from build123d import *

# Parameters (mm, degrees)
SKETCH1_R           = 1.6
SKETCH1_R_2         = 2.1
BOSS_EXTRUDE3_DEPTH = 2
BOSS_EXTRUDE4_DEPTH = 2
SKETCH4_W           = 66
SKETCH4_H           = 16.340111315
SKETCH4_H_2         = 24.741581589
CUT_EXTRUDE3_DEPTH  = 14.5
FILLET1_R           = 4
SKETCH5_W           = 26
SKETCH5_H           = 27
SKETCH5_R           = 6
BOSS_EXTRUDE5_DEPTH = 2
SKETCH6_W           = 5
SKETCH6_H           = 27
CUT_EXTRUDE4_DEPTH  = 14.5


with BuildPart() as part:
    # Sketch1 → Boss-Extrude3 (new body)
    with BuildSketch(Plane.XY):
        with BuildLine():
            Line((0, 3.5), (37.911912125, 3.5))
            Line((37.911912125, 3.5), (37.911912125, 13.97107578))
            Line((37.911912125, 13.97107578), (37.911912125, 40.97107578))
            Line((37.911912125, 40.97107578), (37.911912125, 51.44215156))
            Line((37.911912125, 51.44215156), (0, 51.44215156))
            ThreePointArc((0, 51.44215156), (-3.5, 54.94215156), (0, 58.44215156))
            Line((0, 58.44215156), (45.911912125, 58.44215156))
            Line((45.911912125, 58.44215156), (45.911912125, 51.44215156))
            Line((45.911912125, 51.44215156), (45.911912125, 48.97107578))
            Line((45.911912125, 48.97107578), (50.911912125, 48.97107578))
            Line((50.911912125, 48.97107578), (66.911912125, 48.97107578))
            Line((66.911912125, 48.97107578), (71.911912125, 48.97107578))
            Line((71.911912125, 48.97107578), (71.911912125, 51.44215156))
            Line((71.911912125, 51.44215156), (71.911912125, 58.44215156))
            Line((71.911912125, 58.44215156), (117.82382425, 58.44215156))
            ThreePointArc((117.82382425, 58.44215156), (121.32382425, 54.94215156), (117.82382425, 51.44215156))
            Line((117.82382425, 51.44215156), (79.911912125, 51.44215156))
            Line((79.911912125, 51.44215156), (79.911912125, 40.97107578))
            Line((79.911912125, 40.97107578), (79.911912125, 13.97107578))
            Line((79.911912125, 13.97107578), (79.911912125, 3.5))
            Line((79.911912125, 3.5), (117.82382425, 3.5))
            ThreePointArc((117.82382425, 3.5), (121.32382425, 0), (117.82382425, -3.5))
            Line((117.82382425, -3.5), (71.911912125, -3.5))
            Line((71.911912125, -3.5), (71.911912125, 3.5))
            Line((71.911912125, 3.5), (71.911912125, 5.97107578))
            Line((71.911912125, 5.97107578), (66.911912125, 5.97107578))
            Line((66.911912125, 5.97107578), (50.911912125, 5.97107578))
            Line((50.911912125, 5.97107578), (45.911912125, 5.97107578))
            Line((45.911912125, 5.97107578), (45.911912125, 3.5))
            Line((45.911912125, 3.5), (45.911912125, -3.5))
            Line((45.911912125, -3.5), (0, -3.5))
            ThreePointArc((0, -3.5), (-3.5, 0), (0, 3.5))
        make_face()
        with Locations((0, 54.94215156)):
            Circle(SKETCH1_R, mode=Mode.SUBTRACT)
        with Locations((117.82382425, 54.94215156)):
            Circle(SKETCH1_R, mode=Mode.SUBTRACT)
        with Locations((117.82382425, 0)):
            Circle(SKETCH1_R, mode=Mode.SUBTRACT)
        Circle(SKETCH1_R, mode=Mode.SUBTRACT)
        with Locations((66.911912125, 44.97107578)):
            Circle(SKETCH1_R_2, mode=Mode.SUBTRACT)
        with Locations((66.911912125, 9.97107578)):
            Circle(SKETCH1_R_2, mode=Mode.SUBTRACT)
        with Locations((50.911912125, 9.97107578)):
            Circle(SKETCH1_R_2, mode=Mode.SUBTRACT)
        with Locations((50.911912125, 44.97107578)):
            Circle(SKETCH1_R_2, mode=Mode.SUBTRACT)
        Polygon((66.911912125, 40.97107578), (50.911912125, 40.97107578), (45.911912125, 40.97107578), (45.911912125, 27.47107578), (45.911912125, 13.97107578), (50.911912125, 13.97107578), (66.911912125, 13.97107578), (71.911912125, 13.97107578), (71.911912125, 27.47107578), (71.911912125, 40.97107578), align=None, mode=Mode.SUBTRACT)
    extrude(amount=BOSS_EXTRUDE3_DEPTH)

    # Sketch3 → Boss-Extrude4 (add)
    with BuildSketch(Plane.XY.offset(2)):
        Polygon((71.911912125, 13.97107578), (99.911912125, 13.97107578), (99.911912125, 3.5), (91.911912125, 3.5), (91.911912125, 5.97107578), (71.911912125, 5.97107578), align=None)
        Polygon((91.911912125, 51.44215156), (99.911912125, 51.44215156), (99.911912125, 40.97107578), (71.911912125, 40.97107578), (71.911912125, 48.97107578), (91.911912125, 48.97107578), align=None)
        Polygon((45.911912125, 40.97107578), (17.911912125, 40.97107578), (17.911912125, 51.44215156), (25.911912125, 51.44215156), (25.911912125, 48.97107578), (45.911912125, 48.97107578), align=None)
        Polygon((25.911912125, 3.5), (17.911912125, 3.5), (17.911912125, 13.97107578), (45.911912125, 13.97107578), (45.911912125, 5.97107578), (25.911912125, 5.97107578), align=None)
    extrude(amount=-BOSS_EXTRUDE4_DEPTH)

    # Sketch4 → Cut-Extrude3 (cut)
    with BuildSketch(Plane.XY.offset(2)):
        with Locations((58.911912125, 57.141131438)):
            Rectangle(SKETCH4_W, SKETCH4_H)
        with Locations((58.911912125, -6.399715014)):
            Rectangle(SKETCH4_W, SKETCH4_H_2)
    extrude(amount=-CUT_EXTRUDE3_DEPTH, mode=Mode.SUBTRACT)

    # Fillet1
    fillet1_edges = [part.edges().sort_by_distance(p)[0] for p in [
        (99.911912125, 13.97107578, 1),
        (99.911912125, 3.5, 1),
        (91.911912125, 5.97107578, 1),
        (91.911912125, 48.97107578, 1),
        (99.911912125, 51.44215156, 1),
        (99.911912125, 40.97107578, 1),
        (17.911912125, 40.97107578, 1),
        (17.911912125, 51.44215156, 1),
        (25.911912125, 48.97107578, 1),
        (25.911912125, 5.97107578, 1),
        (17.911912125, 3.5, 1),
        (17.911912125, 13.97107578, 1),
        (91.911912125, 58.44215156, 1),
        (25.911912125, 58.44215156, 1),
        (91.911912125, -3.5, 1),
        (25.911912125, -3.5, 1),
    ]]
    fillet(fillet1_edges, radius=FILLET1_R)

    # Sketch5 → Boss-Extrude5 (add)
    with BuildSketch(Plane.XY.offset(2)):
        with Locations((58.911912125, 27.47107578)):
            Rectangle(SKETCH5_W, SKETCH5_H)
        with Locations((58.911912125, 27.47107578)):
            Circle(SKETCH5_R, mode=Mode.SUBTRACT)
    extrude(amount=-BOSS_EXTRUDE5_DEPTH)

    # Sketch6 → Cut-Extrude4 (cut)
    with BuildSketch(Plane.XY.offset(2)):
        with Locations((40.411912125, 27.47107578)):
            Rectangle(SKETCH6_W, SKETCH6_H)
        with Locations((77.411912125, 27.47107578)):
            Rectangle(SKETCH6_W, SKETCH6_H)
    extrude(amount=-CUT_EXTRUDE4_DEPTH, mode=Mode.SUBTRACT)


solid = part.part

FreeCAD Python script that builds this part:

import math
import FreeCAD as App
import Part
import Sketcher
from FreeCAD import Vector
Q = App.Units.Quantity


def edges_at(feature, points):
    """Names of the edges that pass closest to the given points."""
    edges = feature.Shape.Edges
    near = lambda p: min(range(len(edges)), key=lambda i: edges[i].distToShape(Part.Vertex(*p))[0])
    return sorted({f"Edge{near(p) + 1}" for p in points})

doc = App.newDocument("Part")
body = doc.addObject("PartDesign::Body", "Body")

sketch1 = doc.addObject("Sketcher::SketchObject", "Sketch")
body.addObject(sketch1)
sketch1.AttachmentSupport = (doc.XY_Plane, [""])
sketch1.MapMode = "FlatFace"
sketch1.addGeometry(Part.LineSegment(Vector(37.9, 3.5, 0), Vector(0, 3.5, 0)), False)
sketch1.addGeometry(Part.ArcOfCircle(Part.Circle(Vector(0, 0, 0), Vector(0, 0, 1), 3.5), math.radians(90), math.radians(270)), False)
sketch1.addGeometry(Part.LineSegment(Vector(0, -3.5, 0), Vector(45.9, -3.5, 0)), False)
sketch1.addGeometry(Part.LineSegment(Vector(45.9, -3.5, 0), Vector(45.9, 6, 0)), False)
sketch1.addGeometry(Part.LineSegment(Vector(45.9, 6, 0), Vector(71.9, 6, 0)), False)
sketch1.addGeometry(Part.LineSegment(Vector(71.9, 6, 0), Vector(71.9, -3.5, 0)), False)
sketch1.addGeometry(Part.LineSegment(Vector(71.9, -3.5, 0), Vector(117.8, -3.5, 0)), False)
sketch1.addGeometry(Part.ArcOfCircle(Part.Circle(Vector(117.8, 0, 0), Vector(0, 0, 1), 3.5), math.radians(-90), math.radians(90)), False)
sketch1.addGeometry(Part.LineSegment(Vector(117.8, 3.5, 0), Vector(79.9, 3.5, 0)), False)
sketch1.addGeometry(Part.LineSegment(Vector(79.9, 3.5, 0), Vector(79.9, 51.4, 0)), False)
sketch1.addGeometry(Part.LineSegment(Vector(79.9, 51.4, 0), Vector(117.8, 51.4, 0)), False)
sketch1.addGeometry(Part.ArcOfCircle(Part.Circle(Vector(117.8, 54.9, 0), Vector(0, 0, 1), 3.5), math.radians(-90), math.radians(90)), False)
sketch1.addGeometry(Part.LineSegment(Vector(117.8, 58.4, 0), Vector(71.9, 58.4, 0)), False)
sketch1.addGeometry(Part.LineSegment(Vector(71.9, 58.4, 0), Vector(71.9, 49, 0)), False)
sketch1.addGeometry(Part.LineSegment(Vector(71.9, 49, 0), Vector(45.9, 49, 0)), False)
sketch1.addGeometry(Part.LineSegment(Vector(45.9, 49, 0), Vector(45.9, 58.4, 0)), False)
sketch1.addGeometry(Part.LineSegment(Vector(45.9, 58.4, 0), Vector(0, 58.4, 0)), False)
sketch1.addGeometry(Part.ArcOfCircle(Part.Circle(Vector(0, 54.9, 0), Vector(0, 0, 1), 3.5), math.radians(90), math.radians(270)), False)
sketch1.addGeometry(Part.LineSegment(Vector(0, 51.4, 0), Vector(37.9, 51.4, 0)), False)
sketch1.addGeometry(Part.LineSegment(Vector(37.9, 51.4, 0), Vector(37.9, 3.5, 0)), False)
sketch1.addGeometry(Part.Circle(Vector(117.8, 0, 0), Vector(0, 0, 1), 1.6), False)
sketch1.addGeometry(Part.Circle(Vector(66.9, 10, 0), Vector(0, 0, 1), 2.1), False)
sketch1.addGeometry(Part.Circle(Vector(50.9, 10, 0), Vector(0, 0, 1), 2.1), False)
sketch1.addGeometry(Part.Circle(Vector(0, 0, 0), Vector(0, 0, 1), 1.6), False)
sketch1.addGeometry(Part.LineSegment(Vector(71.9, 41, 0), Vector(71.9, 14, 0)), False)
sketch1.addGeometry(Part.LineSegment(Vector(71.9, 14, 0), Vector(45.9, 14, 0)), False)
sketch1.addGeometry(Part.LineSegment(Vector(45.9, 14, 0), Vector(45.9, 41, 0)), False)
sketch1.addGeometry(Part.LineSegment(Vector(45.9, 41, 0), Vector(71.9, 41, 0)), False)
sketch1.addGeometry(Part.Circle(Vector(117.8, 54.9, 0), Vector(0, 0, 1), 1.6), False)
sketch1.addGeometry(Part.Circle(Vector(66.9, 45, 0), Vector(0, 0, 1), 2.1), False)
sketch1.addGeometry(Part.Circle(Vector(50.9, 45, 0), Vector(0, 0, 1), 2.1), False)
sketch1.addGeometry(Part.Circle(Vector(0, 54.9, 0), Vector(0, 0, 1), 1.6), False)
sketch1.addConstraint(Sketcher.Constraint("Tangent", 0, 2, 1, 1))
sketch1.addConstraint(Sketcher.Constraint("Tangent", 1, 2, 2, 1))
sketch1.addConstraint(Sketcher.Constraint("Coincident", 2, 2, 3, 1))
sketch1.addConstraint(Sketcher.Constraint("Coincident", 3, 2, 4, 1))
sketch1.addConstraint(Sketcher.Constraint("Coincident", 4, 2, 5, 1))
sketch1.addConstraint(Sketcher.Constraint("Coincident", 5, 2, 6, 1))
sketch1.addConstraint(Sketcher.Constraint("Tangent", 6, 2, 7, 1))
sketch1.addConstraint(Sketcher.Constraint("Tangent", 7, 2, 8, 1))
sketch1.addConstraint(Sketcher.Constraint("Coincident", 8, 2, 9, 1))
sketch1.addConstraint(Sketcher.Constraint("Coincident", 9, 2, 10, 1))
sketch1.addConstraint(Sketcher.Constraint("Tangent", 10, 2, 11, 1))
sketch1.addConstraint(Sketcher.Constraint("Tangent", 11, 2, 12, 1))
sketch1.addConstraint(Sketcher.Constraint("Coincident", 12, 2, 13, 1))
sketch1.addConstraint(Sketcher.Constraint("Coincident", 13, 2, 14, 1))
sketch1.addConstraint(Sketcher.Constraint("Coincident", 14, 2, 15, 1))
sketch1.addConstraint(Sketcher.Constraint("Coincident", 15, 2, 16, 1))
sketch1.addConstraint(Sketcher.Constraint("Tangent", 16, 2, 17, 1))
sketch1.addConstraint(Sketcher.Constraint("Tangent", 17, 2, 18, 1))
sketch1.addConstraint(Sketcher.Constraint("Coincident", 18, 2, 19, 1))
sketch1.addConstraint(Sketcher.Constraint("Coincident", 19, 2, 0, 1))
sketch1.addConstraint(Sketcher.Constraint("Coincident", 24, 2, 25, 1))
sketch1.addConstraint(Sketcher.Constraint("Coincident", 25, 2, 26, 1))
sketch1.addConstraint(Sketcher.Constraint("Coincident", 26, 2, 27, 1))
sketch1.addConstraint(Sketcher.Constraint("Coincident", 27, 2, 24, 1))
sketch1.addConstraint(Sketcher.Constraint("Horizontal", 0))
sketch1.addConstraint(Sketcher.Constraint("Horizontal", 2))
sketch1.addConstraint(Sketcher.Constraint("Vertical", 3))
sketch1.addConstraint(Sketcher.Constraint("Horizontal", 4))
sketch1.addConstraint(Sketcher.Constraint("Vertical", 5))
sketch1.addConstraint(Sketcher.Constraint("Horizontal", 6))
sketch1.addConstraint(Sketcher.Constraint("Horizontal", 8))
sketch1.addConstraint(Sketcher.Constraint("Vertical", 9))
sketch1.addConstraint(Sketcher.Constraint("Horizontal", 10))
sketch1.addConstraint(Sketcher.Constraint("Horizontal", 12))
sketch1.addConstraint(Sketcher.Constraint("Vertical", 13))
sketch1.addConstraint(Sketcher.Constraint("Horizontal", 14))
sketch1.addConstraint(Sketcher.Constraint("Vertical", 15))
sketch1.addConstraint(Sketcher.Constraint("Horizontal", 16))
sketch1.addConstraint(Sketcher.Constraint("Horizontal", 18))
sketch1.addConstraint(Sketcher.Constraint("Vertical", 19))
sketch1.addConstraint(Sketcher.Constraint("Vertical", 24))
sketch1.addConstraint(Sketcher.Constraint("Horizontal", 25))
sketch1.addConstraint(Sketcher.Constraint("Vertical", 26))
sketch1.addConstraint(Sketcher.Constraint("Horizontal", 27))
sketch1.addConstraint(Sketcher.Constraint("Coincident", 1, 3, -1, 1))
sketch1.addConstraint(Sketcher.Constraint("Coincident", 23, 3, -1, 1))
sketch1.addConstraint(Sketcher.Constraint("Coincident", 20, 3, 7, 3))
sketch1.addConstraint(Sketcher.Constraint("Coincident", 28, 3, 11, 3))
sketch1.addConstraint(Sketcher.Constraint("Coincident", 31, 3, 17, 3))
sketch1.addConstraint(Sketcher.Constraint("Equal", 1, 7))
sketch1.addConstraint(Sketcher.Constraint("Equal", 7, 11))
sketch1.addConstraint(Sketcher.Constraint("Equal", 11, 17))
sketch1.addConstraint(Sketcher.Constraint("Equal", 21, 22))
sketch1.addConstraint(Sketcher.Constraint("Equal", 20, 23))
sketch1.addConstraint(Sketcher.Constraint("Equal", 23, 28))
sketch1.addConstraint(Sketcher.Constraint("Equal", 22, 29))
sketch1.addConstraint(Sketcher.Constraint("Equal", 29, 30))
sketch1.addConstraint(Sketcher.Constraint("Equal", 28, 31))
sketch1.addConstraint(Sketcher.Constraint("PointOnObject", 7, 3, -1))
sketch1.addConstraint(Sketcher.Constraint("PointOnObject", 17, 3, -2))
sketch1.addConstraint(Sketcher.Constraint("Horizontal", 11, 3, 17, 3))
sketch1.addConstraint(Sketcher.Constraint("Horizontal", 21, 3, 22, 3))
sketch1.addConstraint(Sketcher.Constraint("Horizontal", 29, 3, 30, 3))
sketch1.addConstraint(Sketcher.Constraint("Vertical", 7, 3, 11, 3))
sketch1.addConstraint(Sketcher.Constraint("Vertical", 21, 3, 29, 3))
sketch1.addConstraint(Sketcher.Constraint("Vertical", 22, 3, 30, 3))
sketch1.addConstraint(Sketcher.Constraint("Vertical", 5, 2, 12, 2))
sketch1.addConstraint(Sketcher.Constraint("Vertical", 3, 2, 14, 2))
sketch1.addConstraint(Sketcher.Constraint("Vertical", 13, 2, 24, 2))
sketch1.addConstraint(Sketcher.Constraint("Vertical", 15, 2, 25, 2))
sketch1.addConstraint(Sketcher.Constraint("Equal", 2, 6))
sketch1.addConstraint(Sketcher.Constraint("Equal", 0, 8))
sketch1.addConstraint(Sketcher.Constraint("Equal", 5, 13))
sketch1.addConstraint(Sketcher.Constraint("Diameter", 20, Q("3.2 mm")))
sketch1.addConstraint(Sketcher.Constraint("Diameter", 21, Q("4.2 mm")))
sketch1.addConstraint(Sketcher.Constraint("Radius", 1, Q("3.5 mm")))
sketch1.addConstraint(Sketcher.Constraint("DistanceX", 4, 1, 4, 2, Q("26 mm")))
sketch1.addConstraint(Sketcher.Constraint("DistanceY", 24, 2, 24, 1, Q("27 mm")))
sketch1.addConstraint(Sketcher.Constraint("DistanceX", 22, 3, 21, 3, Q("16 mm")))
sketch1.addConstraint(Sketcher.Constraint("DistanceY", 21, 3, 29, 3, Q("35 mm")))
sketch1.addConstraint(Sketcher.Constraint("DistanceX", 2, 2, 22, 3, Q("5 mm")))
sketch1.addConstraint(Sketcher.Constraint("DistanceY", 3, 2, 22, 3, Q("4 mm")))
sketch1.addConstraint(Sketcher.Constraint("DistanceX", 4, 2, 8, 2, Q("8 mm")))
sketch1.addConstraint(Sketcher.Constraint("DistanceY", 29, 3, 13, 2, Q("4 mm")))
sketch1.addConstraint(Sketcher.Constraint("DistanceY", 21, 3, 24, 2, Q("4 mm")))
sketch1.addConstraint(Sketcher.Constraint("DistanceY", 9, 1, 9, 2, Q("47.942152 mm")))
sketch1.addConstraint(Sketcher.Constraint("DistanceX", 0, 2, 0, 1, Q("37.911912 mm")))
pad1 = doc.addObject("PartDesign::Pad", "Pad")
body.addObject(pad1)
pad1.Profile = sketch1
pad1.Length = 2

sketch2 = doc.addObject("Sketcher::SketchObject", "Sketch001")
body.addObject(sketch2)
sketch2.AttachmentSupport = (doc.XY_Plane, [""])
sketch2.MapMode = "FlatFace"
sketch2.AttachmentOffset = App.Placement(Vector(0, 0, 2), App.Rotation())
sketch2.addGeometry(Part.LineSegment(Vector(99.9, 14, 0), Vector(71.9, 14, 0)), False)
sketch2.addGeometry(Part.LineSegment(Vector(71.9, 14, 0), Vector(71.9, 6, 0)), False)
sketch2.addGeometry(Part.LineSegment(Vector(71.9, 6, 0), Vector(91.9, 6, 0)), False)
sketch2.addGeometry(Part.LineSegment(Vector(91.9, 6, 0), Vector(91.9, 3.5, 0)), False)
sketch2.addGeometry(Part.LineSegment(Vector(91.9, 3.5, 0), Vector(99.9, 3.5, 0)), False)
sketch2.addGeometry(Part.LineSegment(Vector(99.9, 3.5, 0), Vector(99.9, 14, 0)), False)
sketch2.addGeometry(Part.LineSegment(Vector(99.9, 51.4, 0), Vector(91.9, 51.4, 0)), False)
sketch2.addGeometry(Part.LineSegment(Vector(91.9, 51.4, 0), Vector(91.9, 49, 0)), False)
sketch2.addGeometry(Part.LineSegment(Vector(91.9, 49, 0), Vector(71.9, 49, 0)), False)
sketch2.addGeometry(Part.LineSegment(Vector(71.9, 49, 0), Vector(71.9, 41, 0)), False)
sketch2.addGeometry(Part.LineSegment(Vector(71.9, 41, 0), Vector(99.9, 41, 0)), False)
sketch2.addGeometry(Part.LineSegment(Vector(99.9, 41, 0), Vector(99.9, 51.4, 0)), False)
sketch2.addGeometry(Part.LineSegment(Vector(17.9, 41, 0), Vector(45.9, 41, 0)), False)
sketch2.addGeometry(Part.LineSegment(Vector(45.9, 41, 0), Vector(45.9, 49, 0)), False)
sketch2.addGeometry(Part.LineSegment(Vector(45.9, 49, 0), Vector(25.9, 49, 0)), False)
sketch2.addGeometry(Part.LineSegment(Vector(25.9, 49, 0), Vector(25.9, 51.4, 0)), False)
sketch2.addGeometry(Part.LineSegment(Vector(25.9, 51.4, 0), Vector(17.9, 51.4, 0)), False)
sketch2.addGeometry(Part.LineSegment(Vector(17.9, 51.4, 0), Vector(17.9, 41, 0)), False)
sketch2.addGeometry(Part.LineSegment(Vector(17.9, 3.5, 0), Vector(25.9, 3.5, 0)), False)
sketch2.addGeometry(Part.LineSegment(Vector(25.9, 3.5, 0), Vector(25.9, 6, 0)), False)
sketch2.addGeometry(Part.LineSegment(Vector(25.9, 6, 0), Vector(45.9, 6, 0)), False)
sketch2.addGeometry(Part.LineSegment(Vector(45.9, 6, 0), Vector(45.9, 14, 0)), False)
sketch2.addGeometry(Part.LineSegment(Vector(45.9, 14, 0), Vector(17.9, 14, 0)), False)
sketch2.addGeometry(Part.LineSegment(Vector(17.9, 14, 0), Vector(17.9, 3.5, 0)), False)
sketch2.addConstraint(Sketcher.Constraint("Coincident", 0, 2, 1, 1))
sketch2.addConstraint(Sketcher.Constraint("Coincident", 1, 2, 2, 1))
sketch2.addConstraint(Sketcher.Constraint("Coincident", 2, 2, 3, 1))
sketch2.addConstraint(Sketcher.Constraint("Coincident", 3, 2, 4, 1))
sketch2.addConstraint(Sketcher.Constraint("Coincident", 4, 2, 5, 1))
sketch2.addConstraint(Sketcher.Constraint("Coincident", 5, 2, 0, 1))
sketch2.addConstraint(Sketcher.Constraint("Coincident", 6, 2, 7, 1))
sketch2.addConstraint(Sketcher.Constraint("Coincident", 7, 2, 8, 1))
sketch2.addConstraint(Sketcher.Constraint("Coincident", 8, 2, 9, 1))
sketch2.addConstraint(Sketcher.Constraint("Coincident", 9, 2, 10, 1))
sketch2.addConstraint(Sketcher.Constraint("Coincident", 10, 2, 11, 1))
sketch2.addConstraint(Sketcher.Constraint("Coincident", 11, 2, 6, 1))
sketch2.addConstraint(Sketcher.Constraint("Coincident", 12, 2, 13, 1))
sketch2.addConstraint(Sketcher.Constraint("Coincident", 13, 2, 14, 1))
sketch2.addConstraint(Sketcher.Constraint("Coincident", 14, 2, 15, 1))
sketch2.addConstraint(Sketcher.Constraint("Coincident", 15, 2, 16, 1))
sketch2.addConstraint(Sketcher.Constraint("Coincident", 16, 2, 17, 1))
sketch2.addConstraint(Sketcher.Constraint("Coincident", 17, 2, 12, 1))
sketch2.addConstraint(Sketcher.Constraint("Coincident", 18, 2, 19, 1))
sketch2.addConstraint(Sketcher.Constraint("Coincident", 19, 2, 20, 1))
sketch2.addConstraint(Sketcher.Constraint("Coincident", 20, 2, 21, 1))
sketch2.addConstraint(Sketcher.Constraint("Coincident", 21, 2, 22, 1))
sketch2.addConstraint(Sketcher.Constraint("Coincident", 22, 2, 23, 1))
sketch2.addConstraint(Sketcher.Constraint("Coincident", 23, 2, 18, 1))
sketch2.addConstraint(Sketcher.Constraint("Horizontal", 0))
sketch2.addConstraint(Sketcher.Constraint("Vertical", 1))
sketch2.addConstraint(Sketcher.Constraint("Horizontal", 2))
sketch2.addConstraint(Sketcher.Constraint("Vertical", 3))
sketch2.addConstraint(Sketcher.Constraint("Horizontal", 4))
sketch2.addConstraint(Sketcher.Constraint("Vertical", 5))
sketch2.addConstraint(Sketcher.Constraint("Horizontal", 6))
sketch2.addConstraint(Sketcher.Constraint("Vertical", 7))
sketch2.addConstraint(Sketcher.Constraint("Horizontal", 8))
sketch2.addConstraint(Sketcher.Constraint("Vertical", 9))
sketch2.addConstraint(Sketcher.Constraint("Horizontal", 10))
sketch2.addConstraint(Sketcher.Constraint("Vertical", 11))
sketch2.addConstraint(Sketcher.Constraint("Horizontal", 12))
sketch2.addConstraint(Sketcher.Constraint("Vertical", 13))
sketch2.addConstraint(Sketcher.Constraint("Horizontal", 14))
sketch2.addConstraint(Sketcher.Constraint("Vertical", 15))
sketch2.addConstraint(Sketcher.Constraint("Horizontal", 16))
sketch2.addConstraint(Sketcher.Constraint("Vertical", 17))
sketch2.addConstraint(Sketcher.Constraint("Horizontal", 18))
sketch2.addConstraint(Sketcher.Constraint("Vertical", 19))
sketch2.addConstraint(Sketcher.Constraint("Horizontal", 20))
sketch2.addConstraint(Sketcher.Constraint("Vertical", 21))
sketch2.addConstraint(Sketcher.Constraint("Horizontal", 22))
sketch2.addConstraint(Sketcher.Constraint("Vertical", 23))
sketch2.addConstraint(Sketcher.Constraint("Horizontal", 10, 2, 12, 2))
sketch2.addConstraint(Sketcher.Constraint("Horizontal", 8, 2, 13, 2))
sketch2.addConstraint(Sketcher.Constraint("Horizontal", 11, 2, 15, 2))
sketch2.addConstraint(Sketcher.Constraint("Horizontal", 4, 2, 18, 2))
sketch2.addConstraint(Sketcher.Constraint("Horizontal", 2, 2, 19, 2))
sketch2.addConstraint(Sketcher.Constraint("Horizontal", 5, 2, 21, 2))
sketch2.addConstraint(Sketcher.Constraint("Vertical", 3, 2, 6, 2))
sketch2.addConstraint(Sketcher.Constraint("Vertical", 1, 2, 8, 2))
sketch2.addConstraint(Sketcher.Constraint("Vertical", 5, 2, 10, 2))
sketch2.addConstraint(Sketcher.Constraint("Vertical", 15, 2, 18, 2))
sketch2.addConstraint(Sketcher.Constraint("Vertical", 13, 2, 20, 2))
sketch2.addConstraint(Sketcher.Constraint("Vertical", 17, 2, 22, 2))
sketch2.addConstraint(Sketcher.Constraint("Equal", 10, 12))
sketch2.addConstraint(Sketcher.Constraint("Equal", 8, 14))
sketch2.addConstraint(Sketcher.Constraint("Equal", 18, 1))
sketch2.addConstraint(Sketcher.Constraint("Equal", 3, 7))
sketch2.addConstraint(Sketcher.Constraint("Equal", 1, 9))
sketch2.addConstraint(Sketcher.Constraint("DistanceX", 0, 2, 0, 1, Q("28 mm")))
sketch2.addConstraint(Sketcher.Constraint("DistanceX", 2, 1, 2, 2, Q("20 mm")))
sketch2.addConstraint(Sketcher.Constraint("DistanceY", 5, 2, 7, 2, Q("35 mm")))
sketch2.addConstraint(Sketcher.Constraint("DistanceX", 12, 2, 9, 2, Q("26 mm")))
sketch2.addConstraint(Sketcher.Constraint("DistanceY", -1, 1, 3, 2, Q("3.5 mm")))
sketch2.addConstraint(Sketcher.Constraint("DistanceY", 3, 2, 3, 1, Q("2.471076 mm")))
sketch2.addConstraint(Sketcher.Constraint("DistanceX", -1, 1, 0, 2, Q("71.911912 mm")))
pad2 = doc.addObject("PartDesign::Pad", "Pad001")
body.addObject(pad2)
pad2.Profile = sketch2
pad2.Length = 2
pad2.Reversed = True

sketch3 = doc.addObject("Sketcher::SketchObject", "Sketch002")
body.addObject(sketch3)
sketch3.AttachmentSupport = (doc.XY_Plane, [""])
sketch3.MapMode = "FlatFace"
sketch3.AttachmentOffset = App.Placement(Vector(0, 0, 2), App.Rotation())
sketch3.addGeometry(Part.LineSegment(Vector(26, 65, 0), Vector(26, 49, 0)), False)
sketch3.addGeometry(Part.LineSegment(Vector(26, 49, 0), Vector(92, 49, 0)), False)
sketch3.addGeometry(Part.LineSegment(Vector(92, 49, 0), Vector(92, 65, 0)), False)
sketch3.addGeometry(Part.LineSegment(Vector(92, 65, 0), Vector(26, 65, 0)), False)
sketch3.addGeometry(Part.LineSegment(Vector(26, 6, 0), Vector(26, -19, 0)), False)
sketch3.addGeometry(Part.LineSegment(Vector(26, -19, 0), Vector(92, -19, 0)), False)
sketch3.addGeometry(Part.LineSegment(Vector(92, -19, 0), Vector(92, 6, 0)), False)
sketch3.addGeometry(Part.LineSegment(Vector(92, 6, 0), Vector(26, 6, 0)), False)
sketch3.addConstraint(Sketcher.Constraint("Coincident", 0, 2, 1, 1))
sketch3.addConstraint(Sketcher.Constraint("Coincident", 1, 2, 2, 1))
sketch3.addConstraint(Sketcher.Constraint("Coincident", 2, 2, 3, 1))
sketch3.addConstraint(Sketcher.Constraint("Coincident", 3, 2, 0, 1))
sketch3.addConstraint(Sketcher.Constraint("Coincident", 4, 2, 5, 1))
sketch3.addConstraint(Sketcher.Constraint("Coincident", 5, 2, 6, 1))
sketch3.addConstraint(Sketcher.Constraint("Coincident", 6, 2, 7, 1))
sketch3.addConstraint(Sketcher.Constraint("Coincident", 7, 2, 4, 1))
sketch3.addConstraint(Sketcher.Constraint("Vertical", 0))
sketch3.addConstraint(Sketcher.Constraint("Horizontal", 1))
sketch3.addConstraint(Sketcher.Constraint("Vertical", 2))
sketch3.addConstraint(Sketcher.Constraint("Horizontal", 3))
sketch3.addConstraint(Sketcher.Constraint("Vertical", 4))
sketch3.addConstraint(Sketcher.Constraint("Horizontal", 5))
sketch3.addConstraint(Sketcher.Constraint("Vertical", 6))
sketch3.addConstraint(Sketcher.Constraint("Horizontal", 7))
sketch3.addConstraint(Sketcher.Constraint("Vertical", 3, 2, 4, 2))
sketch3.addConstraint(Sketcher.Constraint("Vertical", 2, 2, 5, 2))
sketch3.addConstraint(Sketcher.Constraint("DistanceX", 1, 1, 1, 2, Q("66 mm")))
sketch3.addConstraint(Sketcher.Constraint("DistanceY", 6, 2, 1, 2, Q("43 mm")))
sketch3.addConstraint(Sketcher.Constraint("DistanceY", 0, 2, 0, 1, Q("16.340111 mm")))
sketch3.addConstraint(Sketcher.Constraint("DistanceY", 4, 2, 4, 1, Q("24.741582 mm")))
sketch3.addConstraint(Sketcher.Constraint("DistanceX", -1, 1, 0, 2, Q("25.911912 mm")))
sketch3.addConstraint(Sketcher.Constraint("DistanceY", -1, 1, 0, 2, Q("48.971076 mm")))
pocket1 = doc.addObject("PartDesign::Pocket", "Pocket")
body.addObject(pocket1)
pocket1.Profile = sketch3
pocket1.Length = 14.5
doc.recompute()

fillet = doc.addObject("PartDesign::Fillet", "Fillet")
body.addObject(fillet)
fillet.Base = (pocket1, edges_at(pocket1, [
    (99.912, 13.971, 1),
    (99.912, 3.5, 1),
    (91.912, 5.971, 1),
    (91.912, 48.971, 1),
    (99.912, 51.442, 1),
    (99.912, 40.971, 1),
    (17.912, 40.971, 1),
    (17.912, 51.442, 1),
    (25.912, 48.971, 1),
    (25.912, 5.971, 1),
    (17.912, 3.5, 1),
    (17.912, 13.971, 1),
    (91.912, 58.442, 1),
    (25.912, 58.442, 1),
    (91.912, -3.5, 1),
    (25.912, -3.5, 1),
]))
fillet.Radius = 4

sketch4 = doc.addObject("Sketcher::SketchObject", "Sketch003")
body.addObject(sketch4)
sketch4.AttachmentSupport = (doc.XY_Plane, [""])
sketch4.MapMode = "FlatFace"
sketch4.AttachmentOffset = App.Placement(Vector(0, 0, 2), App.Rotation())
sketch4.addGeometry(Part.LineSegment(Vector(46, 41, 0), Vector(46, 14, 0)), False)
sketch4.addGeometry(Part.LineSegment(Vector(46, 14, 0), Vector(72, 14, 0)), False)
sketch4.addGeometry(Part.LineSegment(Vector(72, 14, 0), Vector(72, 41, 0)), False)
sketch4.addGeometry(Part.LineSegment(Vector(72, 41, 0), Vector(46, 41, 0)), False)
sketch4.addGeometry(Part.Circle(Vector(59, 27, 0), Vector(0, 0, 1), 6), False)
sketch4.addConstraint(Sketcher.Constraint("Coincident", 0, 2, 1, 1))
sketch4.addConstraint(Sketcher.Constraint("Coincident", 1, 2, 2, 1))
sketch4.addConstraint(Sketcher.Constraint("Coincident", 2, 2, 3, 1))
sketch4.addConstraint(Sketcher.Constraint("Coincident", 3, 2, 0, 1))
sketch4.addConstraint(Sketcher.Constraint("Vertical", 0))
sketch4.addConstraint(Sketcher.Constraint("Horizontal", 1))
sketch4.addConstraint(Sketcher.Constraint("Vertical", 2))
sketch4.addConstraint(Sketcher.Constraint("Horizontal", 3))
sketch4.addConstraint(Sketcher.Constraint("Diameter", 4, Q("12 mm")))
sketch4.addConstraint(Sketcher.Constraint("DistanceX", 1, 1, 1, 2, Q("26 mm")))
sketch4.addConstraint(Sketcher.Constraint("DistanceY", 0, 2, 0, 1, Q("27 mm")))
sketch4.addConstraint(Sketcher.Constraint("DistanceX", 0, 2, 4, 3, Q("13 mm")))
sketch4.addConstraint(Sketcher.Constraint("DistanceY", 0, 2, 4, 3, Q("13.5 mm")))
sketch4.addConstraint(Sketcher.Constraint("DistanceX", -1, 1, 4, 3, Q("58.911912 mm")))
sketch4.addConstraint(Sketcher.Constraint("DistanceY", -1, 1, 4, 3, Q("27.471076 mm")))
pad3 = doc.addObject("PartDesign::Pad", "Pad002")
body.addObject(pad3)
pad3.Profile = sketch4
pad3.Length = 2
pad3.Reversed = True

sketch5 = doc.addObject("Sketcher::SketchObject", "Sketch004")
body.addObject(sketch5)
sketch5.AttachmentSupport = (doc.XY_Plane, [""])
sketch5.MapMode = "FlatFace"
sketch5.AttachmentOffset = App.Placement(Vector(0, 0, 2), App.Rotation())
sketch5.addGeometry(Part.LineSegment(Vector(38, 41, 0), Vector(38, 14, 0)), False)
sketch5.addGeometry(Part.LineSegment(Vector(38, 14, 0), Vector(43, 14, 0)), False)
sketch5.addGeometry(Part.LineSegment(Vector(43, 14, 0), Vector(43, 41, 0)), False)
sketch5.addGeometry(Part.LineSegment(Vector(43, 41, 0), Vector(38, 41, 0)), False)
sketch5.addGeometry(Part.LineSegment(Vector(75, 41, 0), Vector(75, 14, 0)), False)
sketch5.addGeometry(Part.LineSegment(Vector(75, 14, 0), Vector(80, 14, 0)), False)
sketch5.addGeometry(Part.LineSegment(Vector(80, 14, 0), Vector(80, 41, 0)), False)
sketch5.addGeometry(Part.LineSegment(Vector(80, 41, 0), Vector(75, 41, 0)), False)
sketch5.addConstraint(Sketcher.Constraint("Coincident", 0, 2, 1, 1))
sketch5.addConstraint(Sketcher.Constraint("Coincident", 1, 2, 2, 1))
sketch5.addConstraint(Sketcher.Constraint("Coincident", 2, 2, 3, 1))
sketch5.addConstraint(Sketcher.Constraint("Coincident", 3, 2, 0, 1))
sketch5.addConstraint(Sketcher.Constraint("Coincident", 4, 2, 5, 1))
sketch5.addConstraint(Sketcher.Constraint("Coincident", 5, 2, 6, 1))
sketch5.addConstraint(Sketcher.Constraint("Coincident", 6, 2, 7, 1))
sketch5.addConstraint(Sketcher.Constraint("Coincident", 7, 2, 4, 1))
sketch5.addConstraint(Sketcher.Constraint("Vertical", 0))
sketch5.addConstraint(Sketcher.Constraint("Horizontal", 1))
sketch5.addConstraint(Sketcher.Constraint("Vertical", 2))
sketch5.addConstraint(Sketcher.Constraint("Horizontal", 3))
sketch5.addConstraint(Sketcher.Constraint("Vertical", 4))
sketch5.addConstraint(Sketcher.Constraint("Horizontal", 5))
sketch5.addConstraint(Sketcher.Constraint("Vertical", 6))
sketch5.addConstraint(Sketcher.Constraint("Horizontal", 7))
sketch5.addConstraint(Sketcher.Constraint("Horizontal", 1, 2, 4, 2))
sketch5.addConstraint(Sketcher.Constraint("Horizontal", 3, 2, 6, 2))
sketch5.addConstraint(Sketcher.Constraint("Equal", 3, 5))
sketch5.addConstraint(Sketcher.Constraint("DistanceX", 1, 1, 1, 2, Q("5 mm")))
sketch5.addConstraint(Sketcher.Constraint("DistanceY", 0, 2, 0, 1, Q("27 mm")))
sketch5.addConstraint(Sketcher.Constraint("DistanceX", 1, 2, 4, 2, Q("32 mm")))
sketch5.addConstraint(Sketcher.Constraint("DistanceX", -1, 1, 0, 2, Q("37.911912 mm")))
sketch5.addConstraint(Sketcher.Constraint("DistanceY", -1, 1, 0, 2, Q("13.971076 mm")))
pocket2 = doc.addObject("PartDesign::Pocket", "Pocket001")
body.addObject(pocket2)
pocket2.Profile = sketch5
pocket2.Length = 14.5

doc.recompute()
